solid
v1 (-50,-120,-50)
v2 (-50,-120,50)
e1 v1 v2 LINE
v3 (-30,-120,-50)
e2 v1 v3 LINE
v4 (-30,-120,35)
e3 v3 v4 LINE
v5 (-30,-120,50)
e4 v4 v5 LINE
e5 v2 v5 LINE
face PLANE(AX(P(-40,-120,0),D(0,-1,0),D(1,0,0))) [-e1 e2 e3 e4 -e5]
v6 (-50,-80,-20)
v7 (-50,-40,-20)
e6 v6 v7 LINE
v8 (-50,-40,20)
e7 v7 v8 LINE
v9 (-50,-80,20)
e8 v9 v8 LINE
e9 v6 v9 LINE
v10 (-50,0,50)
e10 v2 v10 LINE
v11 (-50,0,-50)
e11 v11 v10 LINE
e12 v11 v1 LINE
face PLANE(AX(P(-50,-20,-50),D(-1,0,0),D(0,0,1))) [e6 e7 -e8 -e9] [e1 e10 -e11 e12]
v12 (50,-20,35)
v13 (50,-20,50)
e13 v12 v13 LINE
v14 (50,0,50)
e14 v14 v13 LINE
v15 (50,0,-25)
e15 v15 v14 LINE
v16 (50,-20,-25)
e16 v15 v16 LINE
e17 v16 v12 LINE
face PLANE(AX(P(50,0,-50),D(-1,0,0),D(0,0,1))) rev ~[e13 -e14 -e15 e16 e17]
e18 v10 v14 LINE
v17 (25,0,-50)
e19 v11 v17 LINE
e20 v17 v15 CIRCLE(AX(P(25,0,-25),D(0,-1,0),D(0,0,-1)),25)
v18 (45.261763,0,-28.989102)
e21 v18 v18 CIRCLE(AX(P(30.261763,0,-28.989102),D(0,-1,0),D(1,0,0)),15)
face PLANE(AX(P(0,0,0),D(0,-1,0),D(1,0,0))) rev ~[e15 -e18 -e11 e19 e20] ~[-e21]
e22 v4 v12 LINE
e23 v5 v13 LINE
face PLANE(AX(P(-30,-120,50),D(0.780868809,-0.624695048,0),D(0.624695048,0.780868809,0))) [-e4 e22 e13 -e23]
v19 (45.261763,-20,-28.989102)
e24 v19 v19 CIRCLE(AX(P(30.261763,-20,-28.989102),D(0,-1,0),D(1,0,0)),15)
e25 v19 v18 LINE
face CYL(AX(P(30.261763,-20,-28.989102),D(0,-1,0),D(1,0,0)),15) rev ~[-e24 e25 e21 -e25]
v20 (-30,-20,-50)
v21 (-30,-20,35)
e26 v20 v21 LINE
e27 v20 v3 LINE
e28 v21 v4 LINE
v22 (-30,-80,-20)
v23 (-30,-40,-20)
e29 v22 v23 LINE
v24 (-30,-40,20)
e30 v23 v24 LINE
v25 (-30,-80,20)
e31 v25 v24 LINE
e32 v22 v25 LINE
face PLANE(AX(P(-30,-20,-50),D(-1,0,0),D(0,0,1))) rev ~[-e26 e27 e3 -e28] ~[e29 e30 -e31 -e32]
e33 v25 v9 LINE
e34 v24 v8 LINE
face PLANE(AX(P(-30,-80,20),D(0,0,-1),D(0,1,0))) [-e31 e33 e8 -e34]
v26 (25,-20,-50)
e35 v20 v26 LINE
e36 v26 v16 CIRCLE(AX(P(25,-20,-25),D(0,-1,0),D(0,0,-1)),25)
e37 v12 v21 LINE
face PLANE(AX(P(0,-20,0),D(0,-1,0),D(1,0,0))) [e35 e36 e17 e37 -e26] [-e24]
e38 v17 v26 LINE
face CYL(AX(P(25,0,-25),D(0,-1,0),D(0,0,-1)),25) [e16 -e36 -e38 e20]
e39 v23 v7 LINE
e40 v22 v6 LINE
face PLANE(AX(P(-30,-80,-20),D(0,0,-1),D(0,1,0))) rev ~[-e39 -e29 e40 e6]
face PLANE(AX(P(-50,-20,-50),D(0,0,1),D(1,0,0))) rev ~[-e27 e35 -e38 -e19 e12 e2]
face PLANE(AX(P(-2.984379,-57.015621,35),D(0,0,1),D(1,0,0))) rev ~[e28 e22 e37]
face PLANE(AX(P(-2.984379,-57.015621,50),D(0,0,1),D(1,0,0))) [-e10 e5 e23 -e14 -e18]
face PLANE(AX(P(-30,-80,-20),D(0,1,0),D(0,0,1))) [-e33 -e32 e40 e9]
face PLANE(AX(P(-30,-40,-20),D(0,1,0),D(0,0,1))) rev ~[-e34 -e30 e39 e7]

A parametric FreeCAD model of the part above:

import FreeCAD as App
import Part
import Sketcher


def edges_at(feature, points):
    """Names of the edges that pass closest to the given points."""
    edges = feature.Shape.Edges
    near = lambda p: min(range(len(edges)), key=lambda i: edges[i].distToShape(Part.Vertex(*p))[0])
    return sorted({f"Edge{near(p) + 1}" for p in points})

doc = App.newDocument("Part")
body = doc.addObject("PartDesign::Body", "Body")

# Sketch on XZ plane
sketch1 = body.newObject("Sketcher::SketchObject", "Sketch")
sketch1.AttachmentSupport = (doc.getObject("XZ_Plane"), [""])
sketch1.MapMode = "FlatFace"
sketch1.addGeometry([
    Part.LineSegment(App.Vector(-50, 50, 0), App.Vector(-50, -50, 0)),
    Part.LineSegment(App.Vector(-50, -50, 0), App.Vector(50, -50, 0)),
    Part.LineSegment(App.Vector(50, -50, 0), App.Vector(50, 50, 0)),
    Part.LineSegment(App.Vector(50, 50, 0), App.Vector(-50, 50, 0)),
], False)
sketch1.addConstraint([
    Sketcher.Constraint("Coincident", 0, 2, 1, 1),
    Sketcher.Constraint("Coincident", 1, 2, 2, 1),
    Sketcher.Constraint("Coincident", 2, 2, 3, 1),
    Sketcher.Constraint("Coincident", 3, 2, 0, 1),
    Sketcher.Constraint("Vertical", 0),
    Sketcher.Constraint("Horizontal", 1),
    Sketcher.Constraint("Vertical", 2),
    Sketcher.Constraint("Horizontal", 3),
    Sketcher.Constraint("Symmetric", 0, 2, 2, 2, -1, 1),
    Sketcher.Constraint("Equal", 3, 0),
    Sketcher.Constraint("DistanceX", 1, 1, 1, 2, 100.0),
])
pad1 = body.newObject("PartDesign::Pad", "Pad")
pad1.Profile = sketch1
pad1.Length = 20

# Sketch on XZ plane
sketch2 = body.newObject("Sketcher::SketchObject", "Sketch001")
sketch2.AttachmentSupport = (doc.getObject("XZ_Plane"), [""])
sketch2.MapMode = "FlatFace"
sketch2.AttachmentOffset = App.Placement(App.Vector(0, 0, 20), App.Rotation())
sketch2.addGeometry(Part.Circle(App.Vector(30.261763, -28.989102, 0), App.Vector(0, 0, 1), 15), False)
sketch2.addConstraint([
    Sketcher.Constraint("Diameter", 0, 30.0),
    Sketcher.Constraint("DistanceY", 0, 3, -1, 1, 28.989102),
    Sketcher.Constraint("DistanceX", -1, 1, 0, 3, 30.261763),
])
pocket1 = body.newObject("PartDesign::Pocket", "Pocket")
pocket1.Profile = sketch2
pocket1.Length = 20

# Sketch on XZ plane
sketch3 = body.newObject("Sketcher::SketchObject", "Sketch002")
sketch3.AttachmentSupport = (doc.getObject("XZ_Plane"), [""])
sketch3.MapMode = "FlatFace"
sketch3.AttachmentOffset = App.Placement(App.Vector(0, 0, 20), App.Rotation())
sketch3.addGeometry([
    Part.LineSegment(App.Vector(-50, 50, 0), App.Vector(-50, -50, 0)),
    Part.LineSegment(App.Vector(-50, -50, 0), App.Vector(-30, -50, 0)),
    Part.LineSegment(App.Vector(-30, -50, 0), App.Vector(-30, 50, 0)),
    Part.LineSegment(App.Vector(-30, 50, 0), App.Vector(-50, 50, 0)),
], False)
sketch3.addConstraint([
    Sketcher.Constraint("Coincident", 0, 2, 1, 1),
    Sketcher.Constraint("Coincident", 1, 2, 2, 1),
    Sketcher.Constraint("Coincident", 2, 2, 3, 1),
    Sketcher.Constraint("Coincident", 3, 2, 0, 1),
    Sketcher.Constraint("Vertical", 0),
    Sketcher.Constraint("Horizontal", 1),
    Sketcher.Constraint("Vertical", 2),
    Sketcher.Constraint("Horizontal", 3),
    Sketcher.Constraint("DistanceX", 1, 1, 1, 2, 20.0),
    Sketcher.Constraint("DistanceY", 0, 2, 0, 1, 100.0),
    Sketcher.Constraint("DistanceX", 0, 2, -1, 1, 50.0),
    Sketcher.Constraint("DistanceY", 0, 2, -1, 1, 50.0),
])
pad2 = body.newObject("PartDesign::Pad", "Pad001")
pad2.Profile = sketch3
pad2.Length = 100
doc.recompute()

fillet = body.newObject("PartDesign::Fillet", "Fillet")
fillet.Base = (pad2, edges_at(pad2, [(50, -10, -50)]))
fillet.Radius = 25

# Sketch on YZ plane
sketch4 = body.newObject("Sketcher::SketchObject", "Sketch003")
sketch4.AttachmentSupport = (doc.getObject("YZ_Plane"), [""])
sketch4.MapMode = "FlatFace"
sketch4.AttachmentOffset = App.Placement(App.Vector(0, 0, -30), App.Rotation())
sketch4.addGeometry([
    Part.LineSegment(App.Vector(-80, 20, 0), App.Vector(-80, -20, 0)),
    Part.LineSegment(App.Vector(-80, -20, 0), App.Vector(-40, -20, 0)),
    Part.LineSegment(App.Vector(-40, -20, 0), App.Vector(-40, 20, 0)),
    Part.LineSegment(App.Vector(-40, 20, 0), App.Vector(-80, 20, 0)),
], False)
sketch4.addConstraint([
    Sketcher.Constraint("Coincident", 0, 2, 1, 1),
    Sketcher.Constraint("Coincident", 1, 2, 2, 1),
    Sketcher.Constraint("Coincident", 2, 2, 3, 1),
    Sketcher.Constraint("Coincident", 3, 2, 0, 1),
    Sketcher.Constraint("Vertical", 0),
    Sketcher.Constraint("Horizontal", 1),
    Sketcher.Constraint("Vertical", 2),
    Sketcher.Constraint("Horizontal", 3),
    Sketcher.Constraint("Equal", 3, 0),
    Sketcher.Constraint("DistanceX", 1, 1, 1, 2, 40.0),
    Sketcher.Constraint("DistanceX", 0, 2, -1, 1, 80.0),
    Sketcher.Constraint("DistanceY", 0, 2, -1, 1, 20.0),
])
pocket2 = body.newObject("PartDesign::Pocket", "Pocket001")
pocket2.Profile = sketch4
pocket2.Length = 20

# Sketch on XY plane
sketch5 = body.newObject("Sketcher::SketchObject", "Sketch004")
sketch5.AttachmentSupport = (doc.getObject("XY_Plane"), [""])
sketch5.MapMode = "FlatFace"
sketch5.AttachmentOffset = App.Placement(App.Vector(0, 0, 50), App.Rotation())
sketch5.addGeometry([
    Part.LineSegment(App.Vector(-30, -20, 0), App.Vector(-30, -120, 0)),
    Part.LineSegment(App.Vector(-30, -120, 0), App.Vector(50, -20, 0)),
    Part.LineSegment(App.Vector(50, -20, 0), App.Vector(-30, -20, 0)),
], False)
sketch5.addConstraint([
    Sketcher.Constraint("Coincident", 0, 2, 1, 1),
    Sketcher.Constraint("Coincident", 1, 2, 2, 1),
    Sketcher.Constraint("Coincident", 2, 2, 0, 1),
    Sketcher.Constraint("Vertical", 0),
    Sketcher.Constraint("Horizontal", 2),
    Sketcher.Constraint("DistanceX", 2, 2, 2, 1, 80.0),
    Sketcher.Constraint("DistanceY", 0, 2, 0, 1, 100.0),
    Sketcher.Constraint("DistanceX", 0, 2, -1, 1, 30.0),
    Sketcher.Constraint("DistanceY", 0, 2, -1, 1, 120.0),
])
pad3 = body.newObject("PartDesign::Pad", "Pad002")
pad3.Profile = sketch5
pad3.Length = 15
pad3.Reversed = True

doc.recompute()
